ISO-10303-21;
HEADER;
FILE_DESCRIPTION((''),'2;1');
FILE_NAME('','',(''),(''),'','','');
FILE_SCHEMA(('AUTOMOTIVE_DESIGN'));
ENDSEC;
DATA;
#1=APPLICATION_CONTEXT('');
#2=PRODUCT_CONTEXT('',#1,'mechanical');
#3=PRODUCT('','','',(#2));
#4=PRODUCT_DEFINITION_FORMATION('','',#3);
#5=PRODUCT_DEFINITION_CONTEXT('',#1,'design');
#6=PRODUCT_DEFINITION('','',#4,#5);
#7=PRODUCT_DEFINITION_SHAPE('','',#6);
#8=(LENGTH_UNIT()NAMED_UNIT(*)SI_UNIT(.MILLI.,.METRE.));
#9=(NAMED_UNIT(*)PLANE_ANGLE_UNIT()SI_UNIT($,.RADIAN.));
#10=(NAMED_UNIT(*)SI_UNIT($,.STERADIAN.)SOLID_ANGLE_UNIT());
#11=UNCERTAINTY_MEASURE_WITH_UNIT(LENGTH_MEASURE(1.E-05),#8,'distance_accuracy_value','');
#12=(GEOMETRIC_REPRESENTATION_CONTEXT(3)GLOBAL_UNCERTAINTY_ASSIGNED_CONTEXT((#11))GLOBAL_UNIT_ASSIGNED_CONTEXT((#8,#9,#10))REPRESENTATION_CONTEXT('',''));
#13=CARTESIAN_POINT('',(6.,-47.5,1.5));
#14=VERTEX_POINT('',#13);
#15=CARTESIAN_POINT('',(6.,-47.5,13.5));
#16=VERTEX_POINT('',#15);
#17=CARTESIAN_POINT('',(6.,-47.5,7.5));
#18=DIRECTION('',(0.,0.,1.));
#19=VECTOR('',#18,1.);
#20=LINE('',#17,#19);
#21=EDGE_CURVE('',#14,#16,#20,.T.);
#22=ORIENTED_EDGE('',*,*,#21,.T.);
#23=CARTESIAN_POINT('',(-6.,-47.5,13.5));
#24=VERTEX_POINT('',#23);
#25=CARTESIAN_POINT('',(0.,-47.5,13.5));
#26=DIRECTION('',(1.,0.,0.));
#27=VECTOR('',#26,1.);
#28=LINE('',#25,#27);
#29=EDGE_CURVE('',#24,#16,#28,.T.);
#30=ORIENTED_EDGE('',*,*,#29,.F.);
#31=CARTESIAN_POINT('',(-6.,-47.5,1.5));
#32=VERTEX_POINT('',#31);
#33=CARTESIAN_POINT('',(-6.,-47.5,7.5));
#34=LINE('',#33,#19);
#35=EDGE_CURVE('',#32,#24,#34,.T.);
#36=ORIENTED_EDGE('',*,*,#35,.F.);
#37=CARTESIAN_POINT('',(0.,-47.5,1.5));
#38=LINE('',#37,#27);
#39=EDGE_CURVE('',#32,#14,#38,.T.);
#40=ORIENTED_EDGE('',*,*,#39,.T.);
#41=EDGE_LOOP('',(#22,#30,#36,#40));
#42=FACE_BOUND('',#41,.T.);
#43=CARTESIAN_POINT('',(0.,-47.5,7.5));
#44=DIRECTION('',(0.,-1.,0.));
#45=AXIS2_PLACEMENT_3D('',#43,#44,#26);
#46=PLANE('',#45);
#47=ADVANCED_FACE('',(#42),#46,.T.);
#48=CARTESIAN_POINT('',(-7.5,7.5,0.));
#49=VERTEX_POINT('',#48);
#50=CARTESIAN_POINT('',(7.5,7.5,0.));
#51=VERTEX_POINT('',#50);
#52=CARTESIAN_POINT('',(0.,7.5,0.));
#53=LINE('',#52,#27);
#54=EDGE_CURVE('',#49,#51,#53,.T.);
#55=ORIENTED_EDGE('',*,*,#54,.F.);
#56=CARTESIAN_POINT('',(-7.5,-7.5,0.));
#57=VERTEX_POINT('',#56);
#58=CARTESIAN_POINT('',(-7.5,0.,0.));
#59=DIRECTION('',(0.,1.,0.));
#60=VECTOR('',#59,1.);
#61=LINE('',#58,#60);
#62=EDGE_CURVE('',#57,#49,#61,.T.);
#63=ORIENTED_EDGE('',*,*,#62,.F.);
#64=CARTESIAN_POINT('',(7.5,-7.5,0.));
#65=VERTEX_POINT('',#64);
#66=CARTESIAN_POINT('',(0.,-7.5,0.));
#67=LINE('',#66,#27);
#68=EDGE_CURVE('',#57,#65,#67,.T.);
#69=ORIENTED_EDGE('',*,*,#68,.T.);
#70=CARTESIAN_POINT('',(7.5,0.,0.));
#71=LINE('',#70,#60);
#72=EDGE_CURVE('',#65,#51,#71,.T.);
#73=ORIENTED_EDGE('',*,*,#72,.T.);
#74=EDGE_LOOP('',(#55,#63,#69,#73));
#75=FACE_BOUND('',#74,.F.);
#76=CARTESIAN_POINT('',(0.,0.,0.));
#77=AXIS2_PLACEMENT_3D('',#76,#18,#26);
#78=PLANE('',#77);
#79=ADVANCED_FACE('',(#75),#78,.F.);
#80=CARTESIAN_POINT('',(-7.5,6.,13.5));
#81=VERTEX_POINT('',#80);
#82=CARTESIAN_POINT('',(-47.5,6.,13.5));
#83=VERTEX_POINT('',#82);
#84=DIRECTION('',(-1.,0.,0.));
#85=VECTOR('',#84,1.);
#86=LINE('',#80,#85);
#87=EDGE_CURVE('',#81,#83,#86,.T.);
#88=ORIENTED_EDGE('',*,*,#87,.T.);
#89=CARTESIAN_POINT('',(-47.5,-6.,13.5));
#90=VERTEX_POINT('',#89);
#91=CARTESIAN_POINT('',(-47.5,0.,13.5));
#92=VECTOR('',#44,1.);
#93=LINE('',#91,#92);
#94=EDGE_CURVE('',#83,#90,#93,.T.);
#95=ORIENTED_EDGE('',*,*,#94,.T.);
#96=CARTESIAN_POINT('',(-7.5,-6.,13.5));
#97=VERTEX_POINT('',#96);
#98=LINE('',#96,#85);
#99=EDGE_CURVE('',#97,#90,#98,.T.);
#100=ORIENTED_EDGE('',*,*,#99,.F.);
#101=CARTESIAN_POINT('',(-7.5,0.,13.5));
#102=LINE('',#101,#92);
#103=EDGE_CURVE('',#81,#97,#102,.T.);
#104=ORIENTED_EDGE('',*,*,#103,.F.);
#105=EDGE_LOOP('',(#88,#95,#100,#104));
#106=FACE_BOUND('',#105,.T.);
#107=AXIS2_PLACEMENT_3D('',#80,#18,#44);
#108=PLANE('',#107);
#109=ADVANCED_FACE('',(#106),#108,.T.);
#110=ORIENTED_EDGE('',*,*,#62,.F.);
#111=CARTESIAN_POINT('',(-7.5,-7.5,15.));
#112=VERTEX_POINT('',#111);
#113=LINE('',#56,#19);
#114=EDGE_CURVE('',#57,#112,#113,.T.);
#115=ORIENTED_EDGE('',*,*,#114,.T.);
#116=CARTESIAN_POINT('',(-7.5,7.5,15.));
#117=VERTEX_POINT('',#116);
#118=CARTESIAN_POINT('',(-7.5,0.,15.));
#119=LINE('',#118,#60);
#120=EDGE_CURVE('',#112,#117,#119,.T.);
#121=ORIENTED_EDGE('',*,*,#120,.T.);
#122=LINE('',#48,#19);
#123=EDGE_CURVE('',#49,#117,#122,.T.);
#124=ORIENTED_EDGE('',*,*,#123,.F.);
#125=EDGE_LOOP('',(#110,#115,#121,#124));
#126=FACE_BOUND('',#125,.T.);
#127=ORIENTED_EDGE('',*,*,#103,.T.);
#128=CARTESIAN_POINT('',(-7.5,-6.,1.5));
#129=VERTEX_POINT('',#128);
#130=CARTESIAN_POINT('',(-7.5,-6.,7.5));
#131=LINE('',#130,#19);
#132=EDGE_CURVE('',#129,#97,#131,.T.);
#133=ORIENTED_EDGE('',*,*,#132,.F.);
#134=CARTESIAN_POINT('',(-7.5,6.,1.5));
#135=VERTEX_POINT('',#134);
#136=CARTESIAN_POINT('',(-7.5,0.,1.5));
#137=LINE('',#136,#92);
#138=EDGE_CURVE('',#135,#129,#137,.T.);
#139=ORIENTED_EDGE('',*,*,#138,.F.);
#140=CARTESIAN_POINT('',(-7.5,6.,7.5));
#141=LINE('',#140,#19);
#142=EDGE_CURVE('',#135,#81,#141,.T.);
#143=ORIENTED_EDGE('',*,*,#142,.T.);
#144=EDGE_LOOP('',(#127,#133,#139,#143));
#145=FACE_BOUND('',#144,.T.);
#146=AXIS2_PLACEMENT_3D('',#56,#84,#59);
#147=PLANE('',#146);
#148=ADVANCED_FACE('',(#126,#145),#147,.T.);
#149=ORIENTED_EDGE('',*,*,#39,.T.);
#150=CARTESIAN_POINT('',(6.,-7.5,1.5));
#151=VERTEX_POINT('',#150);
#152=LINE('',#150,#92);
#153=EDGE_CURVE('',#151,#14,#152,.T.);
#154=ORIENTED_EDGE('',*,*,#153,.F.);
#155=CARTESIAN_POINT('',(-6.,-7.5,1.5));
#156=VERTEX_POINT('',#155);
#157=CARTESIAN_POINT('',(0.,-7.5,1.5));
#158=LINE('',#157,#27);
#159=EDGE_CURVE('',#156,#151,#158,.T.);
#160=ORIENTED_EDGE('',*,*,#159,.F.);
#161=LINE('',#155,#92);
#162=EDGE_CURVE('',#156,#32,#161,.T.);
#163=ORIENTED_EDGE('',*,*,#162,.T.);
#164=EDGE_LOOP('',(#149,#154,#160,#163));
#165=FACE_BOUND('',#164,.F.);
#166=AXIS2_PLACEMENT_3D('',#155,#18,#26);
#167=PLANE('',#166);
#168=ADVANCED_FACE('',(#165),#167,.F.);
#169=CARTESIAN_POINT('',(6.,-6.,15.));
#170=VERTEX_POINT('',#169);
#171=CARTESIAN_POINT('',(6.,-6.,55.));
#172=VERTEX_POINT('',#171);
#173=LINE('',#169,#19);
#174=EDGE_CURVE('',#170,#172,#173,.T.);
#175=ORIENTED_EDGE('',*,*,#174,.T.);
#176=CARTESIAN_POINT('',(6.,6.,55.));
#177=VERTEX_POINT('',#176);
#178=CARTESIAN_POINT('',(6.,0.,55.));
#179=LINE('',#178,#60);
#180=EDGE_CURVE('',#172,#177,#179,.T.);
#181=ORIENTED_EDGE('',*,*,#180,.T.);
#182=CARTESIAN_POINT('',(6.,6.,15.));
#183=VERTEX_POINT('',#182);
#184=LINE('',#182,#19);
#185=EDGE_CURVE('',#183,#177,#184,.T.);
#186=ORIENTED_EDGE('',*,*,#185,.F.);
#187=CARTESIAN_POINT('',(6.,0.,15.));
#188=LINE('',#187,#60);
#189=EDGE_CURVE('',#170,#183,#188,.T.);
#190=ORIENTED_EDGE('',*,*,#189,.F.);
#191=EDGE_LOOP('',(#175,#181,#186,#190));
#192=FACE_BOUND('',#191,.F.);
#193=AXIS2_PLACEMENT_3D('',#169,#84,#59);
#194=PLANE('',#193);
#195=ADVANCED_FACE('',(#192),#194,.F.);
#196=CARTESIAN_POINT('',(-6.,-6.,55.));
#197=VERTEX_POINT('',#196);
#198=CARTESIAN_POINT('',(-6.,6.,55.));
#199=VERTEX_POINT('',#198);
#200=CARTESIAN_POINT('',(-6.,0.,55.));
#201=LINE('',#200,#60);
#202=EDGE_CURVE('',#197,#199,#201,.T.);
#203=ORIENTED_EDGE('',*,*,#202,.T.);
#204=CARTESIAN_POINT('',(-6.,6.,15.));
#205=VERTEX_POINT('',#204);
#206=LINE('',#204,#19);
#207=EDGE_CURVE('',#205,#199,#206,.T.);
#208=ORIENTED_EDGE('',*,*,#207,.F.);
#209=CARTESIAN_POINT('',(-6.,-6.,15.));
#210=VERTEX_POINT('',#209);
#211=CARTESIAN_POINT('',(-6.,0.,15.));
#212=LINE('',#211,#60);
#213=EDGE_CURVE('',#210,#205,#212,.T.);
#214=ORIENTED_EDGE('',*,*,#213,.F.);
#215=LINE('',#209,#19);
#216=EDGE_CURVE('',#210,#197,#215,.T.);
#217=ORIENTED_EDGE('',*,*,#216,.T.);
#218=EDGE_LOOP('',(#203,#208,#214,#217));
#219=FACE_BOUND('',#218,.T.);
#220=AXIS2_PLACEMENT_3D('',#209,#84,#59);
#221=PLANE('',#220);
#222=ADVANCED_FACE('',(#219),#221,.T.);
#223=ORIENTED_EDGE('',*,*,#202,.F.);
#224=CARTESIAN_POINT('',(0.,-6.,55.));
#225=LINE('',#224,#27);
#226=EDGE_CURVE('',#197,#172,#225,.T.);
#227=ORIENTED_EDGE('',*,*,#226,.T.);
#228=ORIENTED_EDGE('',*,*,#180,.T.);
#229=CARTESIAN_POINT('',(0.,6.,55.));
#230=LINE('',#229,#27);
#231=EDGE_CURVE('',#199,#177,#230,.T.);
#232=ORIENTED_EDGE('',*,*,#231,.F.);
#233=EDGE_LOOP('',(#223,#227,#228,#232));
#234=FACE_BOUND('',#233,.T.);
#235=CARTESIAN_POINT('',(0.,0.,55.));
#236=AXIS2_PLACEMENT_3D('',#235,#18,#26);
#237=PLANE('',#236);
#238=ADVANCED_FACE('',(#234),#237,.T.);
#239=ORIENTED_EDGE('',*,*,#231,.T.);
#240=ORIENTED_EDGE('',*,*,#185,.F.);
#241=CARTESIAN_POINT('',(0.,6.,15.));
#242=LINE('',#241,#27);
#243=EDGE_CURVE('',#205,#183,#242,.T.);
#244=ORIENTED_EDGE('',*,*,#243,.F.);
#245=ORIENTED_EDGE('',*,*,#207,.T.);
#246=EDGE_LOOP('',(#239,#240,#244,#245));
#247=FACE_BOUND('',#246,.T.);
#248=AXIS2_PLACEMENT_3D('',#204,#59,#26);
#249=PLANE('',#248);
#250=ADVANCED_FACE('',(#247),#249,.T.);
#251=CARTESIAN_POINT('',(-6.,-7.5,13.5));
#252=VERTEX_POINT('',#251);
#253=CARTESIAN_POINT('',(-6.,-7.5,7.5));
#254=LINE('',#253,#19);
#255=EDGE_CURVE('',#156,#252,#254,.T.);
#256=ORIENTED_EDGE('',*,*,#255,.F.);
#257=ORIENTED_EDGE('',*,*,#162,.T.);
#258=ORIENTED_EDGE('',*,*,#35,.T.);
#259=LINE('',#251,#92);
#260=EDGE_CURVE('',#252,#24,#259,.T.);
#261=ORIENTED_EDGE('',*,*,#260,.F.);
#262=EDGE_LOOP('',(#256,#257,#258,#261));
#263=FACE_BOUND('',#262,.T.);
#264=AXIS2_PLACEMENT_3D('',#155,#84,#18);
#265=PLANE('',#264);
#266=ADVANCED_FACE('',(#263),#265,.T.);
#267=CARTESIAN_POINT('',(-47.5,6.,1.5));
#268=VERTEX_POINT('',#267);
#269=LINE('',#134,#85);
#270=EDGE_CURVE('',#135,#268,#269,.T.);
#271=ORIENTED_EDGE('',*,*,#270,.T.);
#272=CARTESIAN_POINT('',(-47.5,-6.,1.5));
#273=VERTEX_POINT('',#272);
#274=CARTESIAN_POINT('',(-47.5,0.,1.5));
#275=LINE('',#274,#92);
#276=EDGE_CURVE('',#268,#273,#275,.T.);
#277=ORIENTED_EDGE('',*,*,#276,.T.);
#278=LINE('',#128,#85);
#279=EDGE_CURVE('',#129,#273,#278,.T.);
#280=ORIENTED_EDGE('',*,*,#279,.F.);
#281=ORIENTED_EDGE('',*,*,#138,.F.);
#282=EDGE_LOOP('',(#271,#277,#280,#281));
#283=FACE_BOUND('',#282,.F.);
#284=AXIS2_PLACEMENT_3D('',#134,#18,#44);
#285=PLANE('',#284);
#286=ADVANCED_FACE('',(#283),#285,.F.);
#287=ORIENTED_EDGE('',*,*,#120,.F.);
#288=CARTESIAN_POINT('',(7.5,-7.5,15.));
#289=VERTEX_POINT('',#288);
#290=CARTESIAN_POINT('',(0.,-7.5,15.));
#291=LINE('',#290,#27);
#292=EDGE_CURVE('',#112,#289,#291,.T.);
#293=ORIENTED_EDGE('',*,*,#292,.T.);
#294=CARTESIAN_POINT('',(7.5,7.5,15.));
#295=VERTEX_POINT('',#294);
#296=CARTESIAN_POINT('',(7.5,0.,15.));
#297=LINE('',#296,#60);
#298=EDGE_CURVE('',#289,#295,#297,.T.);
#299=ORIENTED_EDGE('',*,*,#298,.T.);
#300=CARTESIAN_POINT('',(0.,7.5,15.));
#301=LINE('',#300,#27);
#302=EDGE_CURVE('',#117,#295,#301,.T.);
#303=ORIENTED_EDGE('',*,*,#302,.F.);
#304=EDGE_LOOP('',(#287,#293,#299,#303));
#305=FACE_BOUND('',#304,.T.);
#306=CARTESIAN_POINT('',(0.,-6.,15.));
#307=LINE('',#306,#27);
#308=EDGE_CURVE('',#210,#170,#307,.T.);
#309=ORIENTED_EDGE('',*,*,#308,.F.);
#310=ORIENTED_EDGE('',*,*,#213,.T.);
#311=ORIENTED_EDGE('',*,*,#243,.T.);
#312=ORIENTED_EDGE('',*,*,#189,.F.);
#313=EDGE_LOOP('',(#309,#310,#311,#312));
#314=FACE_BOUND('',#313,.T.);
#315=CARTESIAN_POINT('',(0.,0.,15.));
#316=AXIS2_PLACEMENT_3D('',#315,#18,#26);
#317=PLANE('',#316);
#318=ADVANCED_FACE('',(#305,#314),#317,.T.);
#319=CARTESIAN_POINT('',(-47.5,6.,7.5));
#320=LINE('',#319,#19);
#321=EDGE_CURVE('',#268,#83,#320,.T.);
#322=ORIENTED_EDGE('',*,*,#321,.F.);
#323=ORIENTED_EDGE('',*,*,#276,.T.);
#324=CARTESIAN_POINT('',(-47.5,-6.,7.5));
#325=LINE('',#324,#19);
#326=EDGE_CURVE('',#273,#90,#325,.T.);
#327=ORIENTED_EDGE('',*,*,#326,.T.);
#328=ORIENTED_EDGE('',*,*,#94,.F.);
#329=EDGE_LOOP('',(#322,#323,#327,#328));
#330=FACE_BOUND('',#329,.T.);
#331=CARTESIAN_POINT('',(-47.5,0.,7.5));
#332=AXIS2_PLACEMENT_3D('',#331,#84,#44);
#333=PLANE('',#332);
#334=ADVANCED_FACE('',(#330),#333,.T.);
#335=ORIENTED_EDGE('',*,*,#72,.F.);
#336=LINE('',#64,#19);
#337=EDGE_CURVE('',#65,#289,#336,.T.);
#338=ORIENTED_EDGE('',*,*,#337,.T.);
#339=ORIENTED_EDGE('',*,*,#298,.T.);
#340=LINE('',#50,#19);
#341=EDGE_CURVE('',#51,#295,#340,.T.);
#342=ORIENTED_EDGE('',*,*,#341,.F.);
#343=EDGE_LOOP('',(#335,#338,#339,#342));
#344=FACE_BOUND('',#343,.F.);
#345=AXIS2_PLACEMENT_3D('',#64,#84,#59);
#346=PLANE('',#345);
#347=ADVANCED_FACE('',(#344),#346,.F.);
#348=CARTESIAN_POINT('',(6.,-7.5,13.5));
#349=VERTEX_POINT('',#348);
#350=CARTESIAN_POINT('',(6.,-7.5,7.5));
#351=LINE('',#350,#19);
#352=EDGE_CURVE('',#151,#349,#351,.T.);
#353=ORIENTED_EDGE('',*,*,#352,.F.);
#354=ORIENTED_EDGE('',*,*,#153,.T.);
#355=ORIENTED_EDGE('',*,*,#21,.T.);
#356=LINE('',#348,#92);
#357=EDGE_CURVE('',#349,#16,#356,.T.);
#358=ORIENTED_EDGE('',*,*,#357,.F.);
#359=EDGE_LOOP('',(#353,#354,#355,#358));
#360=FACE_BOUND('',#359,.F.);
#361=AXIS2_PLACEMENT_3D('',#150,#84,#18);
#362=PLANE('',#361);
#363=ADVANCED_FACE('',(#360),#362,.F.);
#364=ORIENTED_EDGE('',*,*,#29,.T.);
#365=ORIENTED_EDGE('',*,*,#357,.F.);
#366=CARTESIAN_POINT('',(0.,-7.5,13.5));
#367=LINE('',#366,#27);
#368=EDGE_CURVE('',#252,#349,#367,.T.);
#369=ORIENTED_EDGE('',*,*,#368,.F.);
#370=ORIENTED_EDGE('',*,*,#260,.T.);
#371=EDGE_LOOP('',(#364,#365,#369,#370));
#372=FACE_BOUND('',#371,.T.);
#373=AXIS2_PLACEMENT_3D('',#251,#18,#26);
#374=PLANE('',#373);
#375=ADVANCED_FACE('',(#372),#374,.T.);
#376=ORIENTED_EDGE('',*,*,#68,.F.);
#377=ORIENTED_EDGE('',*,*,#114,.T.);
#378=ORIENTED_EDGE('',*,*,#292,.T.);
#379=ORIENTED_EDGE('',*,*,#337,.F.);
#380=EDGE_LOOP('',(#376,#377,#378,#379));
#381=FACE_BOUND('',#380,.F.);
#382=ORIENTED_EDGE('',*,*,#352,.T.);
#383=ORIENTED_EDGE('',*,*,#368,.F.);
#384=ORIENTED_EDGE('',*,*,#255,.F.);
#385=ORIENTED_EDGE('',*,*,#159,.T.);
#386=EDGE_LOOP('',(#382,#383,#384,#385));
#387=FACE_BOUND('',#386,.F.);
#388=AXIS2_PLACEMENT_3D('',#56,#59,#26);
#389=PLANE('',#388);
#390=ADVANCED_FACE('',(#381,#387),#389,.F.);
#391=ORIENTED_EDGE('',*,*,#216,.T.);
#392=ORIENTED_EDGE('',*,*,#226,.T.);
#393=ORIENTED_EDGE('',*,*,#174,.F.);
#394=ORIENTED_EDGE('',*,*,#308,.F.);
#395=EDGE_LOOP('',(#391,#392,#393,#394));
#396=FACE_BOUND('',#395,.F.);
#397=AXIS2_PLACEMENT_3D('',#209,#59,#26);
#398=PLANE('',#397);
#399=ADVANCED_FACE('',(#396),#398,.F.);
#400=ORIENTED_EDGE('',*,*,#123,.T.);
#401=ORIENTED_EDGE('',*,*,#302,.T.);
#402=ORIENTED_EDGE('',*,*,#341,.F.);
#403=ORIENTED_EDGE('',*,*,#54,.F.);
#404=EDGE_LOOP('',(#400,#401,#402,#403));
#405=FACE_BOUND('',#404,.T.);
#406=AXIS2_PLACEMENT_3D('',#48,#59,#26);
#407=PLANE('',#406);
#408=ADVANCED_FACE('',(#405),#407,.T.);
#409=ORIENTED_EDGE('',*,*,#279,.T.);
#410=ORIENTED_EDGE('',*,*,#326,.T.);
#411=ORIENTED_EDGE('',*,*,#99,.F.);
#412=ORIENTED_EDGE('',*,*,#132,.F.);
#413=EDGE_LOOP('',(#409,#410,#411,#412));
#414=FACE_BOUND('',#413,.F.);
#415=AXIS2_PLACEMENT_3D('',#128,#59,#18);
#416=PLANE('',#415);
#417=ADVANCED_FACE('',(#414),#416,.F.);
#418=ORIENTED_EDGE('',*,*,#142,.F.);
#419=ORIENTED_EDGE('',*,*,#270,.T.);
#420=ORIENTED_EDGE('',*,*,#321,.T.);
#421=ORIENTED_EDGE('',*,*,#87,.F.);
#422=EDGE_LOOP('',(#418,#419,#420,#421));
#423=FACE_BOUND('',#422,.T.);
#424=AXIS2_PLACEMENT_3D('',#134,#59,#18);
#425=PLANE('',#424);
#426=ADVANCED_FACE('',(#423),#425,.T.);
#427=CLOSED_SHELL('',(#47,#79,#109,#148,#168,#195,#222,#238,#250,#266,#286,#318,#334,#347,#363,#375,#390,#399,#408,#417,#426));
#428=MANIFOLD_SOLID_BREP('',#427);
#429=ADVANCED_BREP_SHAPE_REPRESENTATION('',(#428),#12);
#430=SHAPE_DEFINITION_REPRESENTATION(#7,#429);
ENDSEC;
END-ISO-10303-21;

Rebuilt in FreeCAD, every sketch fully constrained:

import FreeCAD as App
import Part
import Sketcher


def add_polygon(sketch, points):
    """Adds a closed chain of lines whose ends are joined by coincident constraints."""
    first, n = sketch.GeometryCount, len(points)
    for a, b in zip(points, points[1:] + points[:1]):
        sketch.addGeometry(Part.LineSegment(App.Vector(*a, 0), App.Vector(*b, 0)), False)
    for i in range(n):
        sketch.addConstraint(Sketcher.Constraint("Coincident", first + i, 2, first + (i + 1) % n, 1))

doc = App.newDocument("Part")
body = doc.addObject("PartDesign::Body", "Body")

# Sketch on XY plane
sketch1 = body.newObject("Sketcher::SketchObject", "Sketch")
sketch1.AttachmentSupport = (doc.getObject("XY_Plane"), [""])
sketch1.MapMode = "FlatFace"
add_polygon(sketch1, [(-8, 8), (-8, -8), (8, -8), (8, 8)])  # lines 0-3
sketch1.addConstraint([
    Sketcher.Constraint("Vertical", 0),
    Sketcher.Constraint("Horizontal", 1),
    Sketcher.Constraint("Vertical", 2),
    Sketcher.Constraint("Horizontal", 3),
    Sketcher.Constraint("Symmetric", 0, 2, 2, 2, -1, 1),
    Sketcher.Constraint("Equal", 3, 0),
    Sketcher.Constraint("DistanceX", 1, 1, 1, 2, 15.0),
])
pad1 = body.newObject("PartDesign::Pad", "Pad")
pad1.Profile = sketch1
pad1.Length = 15

# Sketch on XY plane
sketch2 = body.newObject("Sketcher::SketchObject", "Sketch001")
sketch2.AttachmentSupport = (doc.getObject("XY_Plane"), [""])
sketch2.MapMode = "FlatFace"
sketch2.AttachmentOffset = App.Placement(App.Vector(0, 0, 15), App.Rotation())
add_polygon(sketch2, [(-6, 6), (-6, -6), (6, -6), (6, 6)])  # lines 0-3
sketch2.addConstraint([
    Sketcher.Constraint("Vertical", 0),
    Sketcher.Constraint("Horizontal", 1),
    Sketcher.Constraint("Vertical", 2),
    Sketcher.Constraint("Horizontal", 3),
    Sketcher.Constraint("Symmetric", 0, 2, 2, 2, -1, 1),
    Sketcher.Constraint("Equal", 3, 0),
    Sketcher.Constraint("DistanceX", 1, 1, 1, 2, 12.0),
])
pad2 = body.newObject("PartDesign::Pad", "Pad001")
pad2.Profile = sketch2
pad2.Length = 40

# Sketch on YZ plane
sketch3 = body.newObject("Sketcher::SketchObject", "Sketch002")
sketch3.AttachmentSupport = (doc.getObject("YZ_Plane"), [""])
sketch3.MapMode = "FlatFace"
sketch3.AttachmentOffset = App.Placement(App.Vector(0, 0, -7.5), App.Rotation())
add_polygon(sketch3, [(6, 14), (6, 2), (-6, 2), (-6, 14)])  # lines 0-3
sketch3.addConstraint([
    Sketcher.Constraint("Vertical", 0),
    Sketcher.Constraint("Horizontal", 1),
    Sketcher.Constraint("Vertical", 2),
    Sketcher.Constraint("Horizontal", 3),
    Sketcher.Constraint("Equal", 3, 0),
    Sketcher.Constraint("DistanceX", 1, 2, 1, 1, 12.0),
    Sketcher.Constraint("DistanceX", -1, 1, 0, 2, 6.0),
    Sketcher.Constraint("DistanceY", -1, 1, 0, 2, 1.5),
])
pad3 = body.newObject("PartDesign::Pad", "Pad002")
pad3.Profile = sketch3
pad3.Length = 40
pad3.Reversed = True

# Sketch on XZ plane
sketch4 = body.newObject("Sketcher::SketchObject", "Sketch003")
sketch4.AttachmentSupport = (doc.getObject("XZ_Plane"), [""])
sketch4.MapMode = "FlatFace"
sketch4.AttachmentOffset = App.Placement(App.Vector(0, 0, 7.5), App.Rotation())
add_polygon(sketch4, [(-6, 14), (-6, 2), (6, 2), (6, 14)])  # lines 0-3
sketch4.addConstraint([
    Sketcher.Constraint("Vertical", 0),
    Sketcher.Constraint("Horizontal", 1),
    Sketcher.Constraint("Vertical", 2),
    Sketcher.Constraint("Horizontal", 3),
    Sketcher.Constraint("Equal", 3, 0),
    Sketcher.Constraint("DistanceX", 1, 1, 1, 2, 12.0),
    Sketcher.Constraint("DistanceX", 0, 2, -1, 1, 6.0),
    Sketcher.Constraint("DistanceY", -1, 1, 0, 2, 1.5),
])
pad4 = body.newObject("PartDesign::Pad", "Pad003")
pad4.Profile = sketch4
pad4.Length = 40

doc.recompute()
